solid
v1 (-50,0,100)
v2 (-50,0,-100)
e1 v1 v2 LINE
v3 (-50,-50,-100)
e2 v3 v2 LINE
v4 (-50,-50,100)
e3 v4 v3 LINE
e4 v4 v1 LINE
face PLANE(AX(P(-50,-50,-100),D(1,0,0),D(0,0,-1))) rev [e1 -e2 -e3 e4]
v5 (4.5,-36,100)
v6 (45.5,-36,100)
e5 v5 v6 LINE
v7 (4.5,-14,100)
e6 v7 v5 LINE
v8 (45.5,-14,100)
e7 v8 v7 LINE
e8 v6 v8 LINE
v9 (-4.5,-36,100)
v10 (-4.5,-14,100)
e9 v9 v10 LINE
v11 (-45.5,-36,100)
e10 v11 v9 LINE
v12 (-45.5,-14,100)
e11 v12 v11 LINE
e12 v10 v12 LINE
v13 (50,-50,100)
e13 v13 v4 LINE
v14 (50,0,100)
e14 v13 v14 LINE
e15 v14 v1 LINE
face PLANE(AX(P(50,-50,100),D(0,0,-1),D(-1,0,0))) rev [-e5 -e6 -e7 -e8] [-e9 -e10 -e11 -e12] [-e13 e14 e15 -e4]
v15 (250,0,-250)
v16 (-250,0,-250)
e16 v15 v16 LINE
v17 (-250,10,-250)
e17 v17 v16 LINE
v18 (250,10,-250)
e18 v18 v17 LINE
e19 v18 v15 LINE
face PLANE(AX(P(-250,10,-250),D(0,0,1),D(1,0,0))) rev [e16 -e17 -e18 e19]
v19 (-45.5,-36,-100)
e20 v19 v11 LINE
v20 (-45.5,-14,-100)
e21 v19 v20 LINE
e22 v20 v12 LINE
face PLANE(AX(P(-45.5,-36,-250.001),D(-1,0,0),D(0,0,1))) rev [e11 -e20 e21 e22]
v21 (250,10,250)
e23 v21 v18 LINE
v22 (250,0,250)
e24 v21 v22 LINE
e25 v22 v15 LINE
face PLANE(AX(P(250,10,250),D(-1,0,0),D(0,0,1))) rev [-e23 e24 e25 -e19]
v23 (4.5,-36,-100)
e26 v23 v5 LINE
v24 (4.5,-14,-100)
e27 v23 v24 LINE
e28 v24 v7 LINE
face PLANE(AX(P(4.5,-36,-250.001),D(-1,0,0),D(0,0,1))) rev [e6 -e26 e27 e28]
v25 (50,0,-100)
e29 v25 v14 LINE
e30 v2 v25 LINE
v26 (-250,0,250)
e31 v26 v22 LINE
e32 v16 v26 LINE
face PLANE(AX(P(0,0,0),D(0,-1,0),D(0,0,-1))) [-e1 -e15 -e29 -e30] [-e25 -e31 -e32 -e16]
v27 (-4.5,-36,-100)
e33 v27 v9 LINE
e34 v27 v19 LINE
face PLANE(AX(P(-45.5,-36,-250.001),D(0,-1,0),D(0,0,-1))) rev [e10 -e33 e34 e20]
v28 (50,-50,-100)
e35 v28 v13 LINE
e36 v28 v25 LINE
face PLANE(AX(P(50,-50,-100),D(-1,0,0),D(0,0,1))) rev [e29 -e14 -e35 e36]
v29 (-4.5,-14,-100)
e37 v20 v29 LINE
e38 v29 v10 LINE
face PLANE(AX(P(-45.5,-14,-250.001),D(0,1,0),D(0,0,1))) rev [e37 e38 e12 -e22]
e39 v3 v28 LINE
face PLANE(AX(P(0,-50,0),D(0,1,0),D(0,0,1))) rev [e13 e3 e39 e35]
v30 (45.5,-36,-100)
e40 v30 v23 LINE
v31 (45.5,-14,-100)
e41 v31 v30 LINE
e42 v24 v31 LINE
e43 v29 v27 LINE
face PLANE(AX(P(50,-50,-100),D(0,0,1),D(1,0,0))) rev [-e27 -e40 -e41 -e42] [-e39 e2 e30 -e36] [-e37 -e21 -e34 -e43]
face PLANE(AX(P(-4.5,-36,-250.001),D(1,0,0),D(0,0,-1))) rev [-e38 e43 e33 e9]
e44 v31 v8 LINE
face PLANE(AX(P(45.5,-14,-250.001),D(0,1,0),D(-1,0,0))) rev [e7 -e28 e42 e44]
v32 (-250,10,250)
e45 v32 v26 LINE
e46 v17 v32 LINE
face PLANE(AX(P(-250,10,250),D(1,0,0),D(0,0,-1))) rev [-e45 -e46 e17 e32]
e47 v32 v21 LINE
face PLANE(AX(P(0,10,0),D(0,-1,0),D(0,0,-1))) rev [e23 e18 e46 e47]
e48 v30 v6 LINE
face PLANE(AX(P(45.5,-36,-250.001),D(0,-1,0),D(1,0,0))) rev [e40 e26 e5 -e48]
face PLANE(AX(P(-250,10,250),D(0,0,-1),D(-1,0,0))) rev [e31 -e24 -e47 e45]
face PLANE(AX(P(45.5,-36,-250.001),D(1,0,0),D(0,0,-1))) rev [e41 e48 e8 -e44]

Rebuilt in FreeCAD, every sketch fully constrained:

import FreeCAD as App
import Part
import Sketcher

V = App.Vector
Q = App.Units.Quantity

doc = App.newDocument("Part")
params = doc.addObject("Spreadsheet::Sheet", "Params")
for row, (alias, value) in enumerate([
    ("sketch1_width", "500 mm"),
    ("pad1_length", "10 mm"),
    ("sketch2_width", "100 mm"),
    ("sketch2_height", "200 mm"),
    ("pad2_length", "50 mm"),
    ("sketch3_width", "41 mm"),
    ("sketch3_height", "22 mm"),
    ("sketch4_width", "41 mm"),
    ("sketch4_height", "22 mm"),
], start=1):
    params.set(f"A{row}", alias)
    params.set(f"B{row}", "=" + value)
    params.setAlias(f"B{row}", alias)

body = doc.addObject("PartDesign::Body", "Body")

sketch1 = body.newObject("Sketcher::SketchObject", "Sketch")
sketch1.AttachmentSupport = (doc.getObject("XZ_Plane"), [""])
sketch1.MapMode = "FlatFace"
sketch1.addGeometry(Part.LineSegment(V(-250, -250, 0), V(-250, 250, 0)), False)
sketch1.addGeometry(Part.LineSegment(V(-250, 250, 0), V(250, 250, 0)), False)
sketch1.addGeometry(Part.LineSegment(V(250, 250, 0), V(250, -250, 0)), False)
sketch1.addGeometry(Part.LineSegment(V(250, -250, 0), V(-250, -250, 0)), False)
sketch1.addConstraint(Sketcher.Constraint("Coincident", 0, 2, 1, 1))
sketch1.addConstraint(Sketcher.Constraint("Coincident", 1, 2, 2, 1))
sketch1.addConstraint(Sketcher.Constraint("Coincident", 2, 2, 3, 1))
sketch1.addConstraint(Sketcher.Constraint("Coincident", 3, 2, 0, 1))
sketch1.addConstraint(Sketcher.Constraint("Vertical", 0))
sketch1.addConstraint(Sketcher.Constraint("Horizontal", 1))
sketch1.addConstraint(Sketcher.Constraint("Vertical", 2))
sketch1.addConstraint(Sketcher.Constraint("Horizontal", 3))
sketch1.addConstraint(Sketcher.Constraint("Symmetric", 0, 2, 2, 2, -1, 1))
sketch1.addConstraint(Sketcher.Constraint("Equal", 3, 0))
sketch1.addConstraint(Sketcher.Constraint("DistanceX", 1, 1, 1, 2, Q("500 mm")))
sketch1.setExpression("Constraints[10]", "Params.sketch1_width")
pad1 = body.newObject("PartDesign::Pad", "Pad")
pad1.Profile = sketch1
pad1.setExpression("Length", "Params.pad1_length")
pad1.Reversed = True

sketch2 = body.newObject("Sketcher::SketchObject", "Sketch001")
sketch2.AttachmentSupport = (doc.getObject("XZ_Plane"), [""])
sketch2.MapMode = "FlatFace"
sketch2.addGeometry(Part.LineSegment(V(-50, 100, 0), V(-50, -100, 0)), False)
sketch2.addGeometry(Part.LineSegment(V(-50, -100, 0), V(50, -100, 0)), False)
sketch2.addGeometry(Part.LineSegment(V(50, -100, 0), V(50, 100, 0)), False)
sketch2.addGeometry(Part.LineSegment(V(50, 100, 0), V(-50, 100, 0)), False)
sketch2.addConstraint(Sketcher.Constraint("Coincident", 0, 2, 1, 1))
sketch2.addConstraint(Sketcher.Constraint("Coincident", 1, 2, 2, 1))
sketch2.addConstraint(Sketcher.Constraint("Coincident", 2, 2, 3, 1))
sketch2.addConstraint(Sketcher.Constraint("Coincident", 3, 2, 0, 1))
sketch2.addConstraint(Sketcher.Constraint("Vertical", 0))
sketch2.addConstraint(Sketcher.Constraint("Horizontal", 1))
sketch2.addConstraint(Sketcher.Constraint("Vertical", 2))
sketch2.addConstraint(Sketcher.Constraint("Horizontal", 3))
sketch2.addConstraint(Sketcher.Constraint("Symmetric", 0, 2, 2, 2, -1, 1))
sketch2.addConstraint(Sketcher.Constraint("DistanceX", 1, 1, 1, 2, Q("100 mm")))
sketch2.addConstraint(Sketcher.Constraint("DistanceY", 0, 2, 0, 1, Q("200 mm")))
sketch2.setExpression("Constraints[9]", "Params.sketch2_width")
sketch2.setExpression("Constraints[10]", "Params.sketch2_height")
pad2 = body.newObject("PartDesign::Pad", "Pad001")
pad2.Profile = sketch2
pad2.setExpression("Length", "Params.pad2_length")

sketch3 = body.newObject("Sketcher::SketchObject", "Sketch002")
sketch3.AttachmentSupport = (doc.getObject("XY_Plane"), [""])
sketch3.MapMode = "FlatFace"
sketch3.AttachmentOffset = App.Placement(V(0, 0, 100), App.Rotation())
sketch3.addGeometry(Part.LineSegment(V(-45.5, -14, 0), V(-45.5, -36, 0)), False)
sketch3.addGeometry(Part.LineSegment(V(-45.5, -36, 0), V(-4.5, -36, 0)), False)
sketch3.addGeometry(Part.LineSegment(V(-4.5, -36, 0), V(-4.5, -14, 0)), False)
sketch3.addGeometry(Part.LineSegment(V(-4.5, -14, 0), V(-45.5, -14, 0)), False)
sketch3.addConstraint(Sketcher.Constraint("Coincident", 0, 2, 1, 1))
sketch3.addConstraint(Sketcher.Constraint("Coincident", 1, 2, 2, 1))
sketch3.addConstraint(Sketcher.Constraint("Coincident", 2, 2, 3, 1))
sketch3.addConstraint(Sketcher.Constraint("Coincident", 3, 2, 0, 1))
sketch3.addConstraint(Sketcher.Constraint("Vertical", 0))
sketch3.addConstraint(Sketcher.Constraint("Horizontal", 1))
sketch3.addConstraint(Sketcher.Constraint("Vertical", 2))
sketch3.addConstraint(Sketcher.Constraint("Horizontal", 3))
sketch3.addConstraint(Sketcher.Constraint("DistanceX", 1, 1, 1, 2, Q("41 mm")))
sketch3.addConstraint(Sketcher.Constraint("DistanceY", 0, 2, 0, 1, Q("22 mm")))
sketch3.addConstraint(Sketcher.Constraint("DistanceY", 0, 2, -1, 1, Q("36 mm")))
sketch3.addConstraint(Sketcher.Constraint("DistanceX", 0, 2, -1, 1, Q("45.5 mm")))
sketch3.setExpression("Constraints[8]", "Params.sketch3_width")
sketch3.setExpression("Constraints[9]", "Params.sketch3_height")
pocket1 = body.newObject("PartDesign::Pocket", "Pocket")
pocket1.Profile = sketch3
pocket1.Type = "UpToFirst"

sketch4 = body.newObject("Sketcher::SketchObject", "Sketch003")
sketch4.AttachmentSupport = (doc.getObject("XY_Plane"), [""])
sketch4.MapMode = "FlatFace"
sketch4.AttachmentOffset = App.Placement(V(0, 0, 100), App.Rotation())
sketch4.addGeometry(Part.LineSegment(V(4.5, -14, 0), V(4.5, -36, 0)), False)
sketch4.addGeometry(Part.LineSegment(V(4.5, -36, 0), V(45.5, -36, 0)), False)
sketch4.addGeometry(Part.LineSegment(V(45.5, -36, 0), V(45.5, -14, 0)), False)
sketch4.addGeometry(Part.LineSegment(V(45.5, -14, 0), V(4.5, -14, 0)), False)
sketch4.addConstraint(Sketcher.Constraint("Coincident", 0, 2, 1, 1))
sketch4.addConstraint(Sketcher.Constraint("Coincident", 1, 2, 2, 1))
sketch4.addConstraint(Sketcher.Constraint("Coincident", 2, 2, 3, 1))
sketch4.addConstraint(Sketcher.Constraint("Coincident", 3, 2, 0, 1))
sketch4.addConstraint(Sketcher.Constraint("Vertical", 0))
sketch4.addConstraint(Sketcher.Constraint("Horizontal", 1))
sketch4.addConstraint(Sketcher.Constraint("Vertical", 2))
sketch4.addConstraint(Sketcher.Constraint("Horizontal", 3))
sketch4.addConstraint(Sketcher.Constraint("DistanceX", 1, 1, 1, 2, Q("41 mm")))
sketch4.addConstraint(Sketcher.Constraint("DistanceY", 0, 2, 0, 1, Q("22 mm")))
sketch4.addConstraint(Sketcher.Constraint("DistanceY", 0, 2, -1, 1, Q("36 mm")))
sketch4.addConstraint(Sketcher.Constraint("DistanceX", -1, 1, 0, 2, Q("4.5 mm")))
sketch4.setExpression("Constraints[8]", "Params.sketch4_width")
sketch4.setExpression("Constraints[9]", "Params.sketch4_height")
pocket2 = body.newObject("PartDesign::Pocket", "Pocket001")
pocket2.Profile = sketch4
pocket2.Type = "UpToFirst"

doc.recompute()
